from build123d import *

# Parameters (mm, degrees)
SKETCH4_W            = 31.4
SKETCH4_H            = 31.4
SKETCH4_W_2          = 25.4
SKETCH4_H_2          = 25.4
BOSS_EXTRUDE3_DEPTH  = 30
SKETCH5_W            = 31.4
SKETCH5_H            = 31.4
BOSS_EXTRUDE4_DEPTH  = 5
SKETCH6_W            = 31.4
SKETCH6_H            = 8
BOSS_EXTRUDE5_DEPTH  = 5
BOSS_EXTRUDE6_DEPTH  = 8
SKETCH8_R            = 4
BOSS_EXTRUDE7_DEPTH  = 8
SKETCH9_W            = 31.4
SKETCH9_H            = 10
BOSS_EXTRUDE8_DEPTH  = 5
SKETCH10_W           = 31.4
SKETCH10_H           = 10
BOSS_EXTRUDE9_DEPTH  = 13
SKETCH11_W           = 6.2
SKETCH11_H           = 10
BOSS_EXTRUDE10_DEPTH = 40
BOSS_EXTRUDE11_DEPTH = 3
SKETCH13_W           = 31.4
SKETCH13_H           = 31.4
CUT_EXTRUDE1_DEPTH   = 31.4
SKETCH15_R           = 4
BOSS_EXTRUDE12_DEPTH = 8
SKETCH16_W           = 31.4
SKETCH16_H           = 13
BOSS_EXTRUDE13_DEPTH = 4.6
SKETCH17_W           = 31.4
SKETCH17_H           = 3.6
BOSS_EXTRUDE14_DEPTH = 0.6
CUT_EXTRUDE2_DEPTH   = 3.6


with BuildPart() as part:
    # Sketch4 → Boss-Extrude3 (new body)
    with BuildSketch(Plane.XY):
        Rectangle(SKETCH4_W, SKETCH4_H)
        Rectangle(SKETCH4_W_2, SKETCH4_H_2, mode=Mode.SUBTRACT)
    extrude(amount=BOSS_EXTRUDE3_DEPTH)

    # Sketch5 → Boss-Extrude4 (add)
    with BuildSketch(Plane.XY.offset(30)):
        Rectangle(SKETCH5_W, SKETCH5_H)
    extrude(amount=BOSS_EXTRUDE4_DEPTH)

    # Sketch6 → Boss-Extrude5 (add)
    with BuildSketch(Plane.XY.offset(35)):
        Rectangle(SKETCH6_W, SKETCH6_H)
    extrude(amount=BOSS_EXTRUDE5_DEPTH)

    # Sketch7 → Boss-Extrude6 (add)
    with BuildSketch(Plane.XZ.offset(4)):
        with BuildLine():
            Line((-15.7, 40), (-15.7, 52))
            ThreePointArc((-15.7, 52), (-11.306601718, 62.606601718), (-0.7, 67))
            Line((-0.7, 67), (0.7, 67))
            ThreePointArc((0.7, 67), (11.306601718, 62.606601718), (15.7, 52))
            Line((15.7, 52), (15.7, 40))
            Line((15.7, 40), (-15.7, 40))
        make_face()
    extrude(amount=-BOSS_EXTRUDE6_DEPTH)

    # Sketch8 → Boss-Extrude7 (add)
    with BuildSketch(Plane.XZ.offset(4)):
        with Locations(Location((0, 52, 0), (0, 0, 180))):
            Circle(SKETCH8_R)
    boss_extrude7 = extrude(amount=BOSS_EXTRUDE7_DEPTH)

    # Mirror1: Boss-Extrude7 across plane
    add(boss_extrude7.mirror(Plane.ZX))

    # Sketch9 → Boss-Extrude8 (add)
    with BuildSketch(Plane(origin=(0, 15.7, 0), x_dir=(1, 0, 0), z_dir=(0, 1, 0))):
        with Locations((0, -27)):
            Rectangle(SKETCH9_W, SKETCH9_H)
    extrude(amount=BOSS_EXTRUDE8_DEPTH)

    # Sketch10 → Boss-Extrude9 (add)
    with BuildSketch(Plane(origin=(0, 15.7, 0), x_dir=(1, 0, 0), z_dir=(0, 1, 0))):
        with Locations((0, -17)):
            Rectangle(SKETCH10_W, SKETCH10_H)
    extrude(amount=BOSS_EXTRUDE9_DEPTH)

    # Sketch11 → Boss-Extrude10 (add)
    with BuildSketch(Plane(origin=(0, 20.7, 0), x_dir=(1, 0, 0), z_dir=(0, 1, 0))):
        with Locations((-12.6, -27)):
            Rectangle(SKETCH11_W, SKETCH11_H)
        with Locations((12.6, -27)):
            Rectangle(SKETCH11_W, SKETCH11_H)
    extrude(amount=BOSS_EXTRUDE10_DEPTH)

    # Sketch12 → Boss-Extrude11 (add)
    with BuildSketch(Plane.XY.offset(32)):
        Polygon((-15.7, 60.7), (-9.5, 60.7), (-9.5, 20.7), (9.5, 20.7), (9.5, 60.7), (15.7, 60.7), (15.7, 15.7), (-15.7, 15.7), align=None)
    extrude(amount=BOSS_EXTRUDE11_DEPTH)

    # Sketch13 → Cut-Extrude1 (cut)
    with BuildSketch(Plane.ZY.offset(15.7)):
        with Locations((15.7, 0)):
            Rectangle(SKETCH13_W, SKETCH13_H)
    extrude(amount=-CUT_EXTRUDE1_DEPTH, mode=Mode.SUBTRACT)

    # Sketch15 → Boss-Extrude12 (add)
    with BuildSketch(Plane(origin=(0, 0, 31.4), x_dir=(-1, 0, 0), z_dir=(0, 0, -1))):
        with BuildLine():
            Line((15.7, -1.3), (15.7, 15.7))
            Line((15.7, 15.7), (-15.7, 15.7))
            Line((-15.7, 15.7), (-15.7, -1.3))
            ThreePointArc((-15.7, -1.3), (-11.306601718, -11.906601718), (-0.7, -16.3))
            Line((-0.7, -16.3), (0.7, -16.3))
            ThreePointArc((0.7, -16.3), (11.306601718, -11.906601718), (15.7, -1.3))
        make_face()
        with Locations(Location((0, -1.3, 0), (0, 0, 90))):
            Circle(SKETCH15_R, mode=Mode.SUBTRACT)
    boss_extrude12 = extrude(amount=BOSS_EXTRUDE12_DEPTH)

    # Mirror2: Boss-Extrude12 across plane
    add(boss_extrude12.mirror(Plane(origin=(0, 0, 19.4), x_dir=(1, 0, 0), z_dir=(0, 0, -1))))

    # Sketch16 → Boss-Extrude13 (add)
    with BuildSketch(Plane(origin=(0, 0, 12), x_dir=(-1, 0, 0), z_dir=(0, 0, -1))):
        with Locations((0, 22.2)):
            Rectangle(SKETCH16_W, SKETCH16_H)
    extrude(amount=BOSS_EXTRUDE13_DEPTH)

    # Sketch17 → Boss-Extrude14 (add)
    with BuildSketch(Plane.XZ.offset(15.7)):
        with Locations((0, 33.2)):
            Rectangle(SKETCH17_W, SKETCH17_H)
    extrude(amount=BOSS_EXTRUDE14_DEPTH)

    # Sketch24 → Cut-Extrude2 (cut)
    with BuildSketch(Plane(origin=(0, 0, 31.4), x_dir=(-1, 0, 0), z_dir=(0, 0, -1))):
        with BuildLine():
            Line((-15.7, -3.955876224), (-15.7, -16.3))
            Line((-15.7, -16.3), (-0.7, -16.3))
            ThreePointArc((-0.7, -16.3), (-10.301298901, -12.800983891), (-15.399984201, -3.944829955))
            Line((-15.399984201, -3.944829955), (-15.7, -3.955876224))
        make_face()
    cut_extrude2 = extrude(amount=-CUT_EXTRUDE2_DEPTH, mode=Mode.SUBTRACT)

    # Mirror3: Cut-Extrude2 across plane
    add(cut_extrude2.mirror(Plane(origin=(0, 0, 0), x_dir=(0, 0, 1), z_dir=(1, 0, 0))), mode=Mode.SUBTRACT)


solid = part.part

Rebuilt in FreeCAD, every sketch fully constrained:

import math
import FreeCAD as App
import Part
import Sketcher
from FreeCAD import Vector
Q = App.Units.Quantity


def add_polygon(sketch, points):
    """Adds a closed chain of lines whose ends are joined by coincident constraints."""
    first, n = sketch.GeometryCount, len(points)
    for a, b in zip(points, points[1:] + points[:1]):
        sketch.addGeometry(Part.LineSegment(App.Vector(*a, 0), App.Vector(*b, 0)), False)
    for i in range(n):
        sketch.addConstraint(Sketcher.Constraint("Coincident", first + i, 2, first + (i + 1) % n, 1))

doc = App.newDocument("Part")
body = doc.addObject("PartDesign::Body", "Body")

# Sketch on XY plane
sketch1 = body.newObject("Sketcher::SketchObject", "Sketch")
sketch1.AttachmentSupport = (doc.getObject("XY_Plane"), [""])
sketch1.MapMode = "FlatFace"
add_polygon(sketch1, [(-15.7, 15.7), (-15.7, -15.7), (15.7, -15.7), (15.7, 15.7)])  # lines 0-3
add_polygon(sketch1, [(12.7, -12.7), (-12.7, -12.7), (-12.7, 12.7), (12.7, 12.7)])  # lines 4-7
sketch1.addConstraint(Sketcher.Constraint("Vertical", 0))
sketch1.addConstraint(Sketcher.Constraint("Horizontal", 1))
sketch1.addConstraint(Sketcher.Constraint("Vertical", 2))
sketch1.addConstraint(Sketcher.Constraint("Horizontal", 3))
sketch1.addConstraint(Sketcher.Constraint("Horizontal", 4))
sketch1.addConstraint(Sketcher.Constraint("Vertical", 5))
sketch1.addConstraint(Sketcher.Constraint("Horizontal", 6))
sketch1.addConstraint(Sketcher.Constraint("Vertical", 7))
sketch1.addConstraint(Sketcher.Constraint("Symmetric", 0, 2, 2, 2, -1, 1))
sketch1.addConstraint(Sketcher.Constraint("Symmetric", 4, 2, 6, 2, -1, 1))
sketch1.addConstraint(Sketcher.Constraint("Equal", 3, 0))
sketch1.addConstraint(Sketcher.Constraint("Equal", 6, 5))
sketch1.addConstraint(Sketcher.Constraint("DistanceX", 1, 1, 1, 2, Q("31.4 mm")))
sketch1.addConstraint(Sketcher.Constraint("DistanceX", 4, 2, 4, 1, Q("25.4 mm")))
pad1 = body.newObject("PartDesign::Pad", "Pad")
pad1.Profile = sketch1
pad1.Length = 30

# Sketch on XY plane
sketch2 = body.newObject("Sketcher::SketchObject", "Sketch001")
sketch2.AttachmentSupport = (doc.getObject("XY_Plane"), [""])
sketch2.MapMode = "FlatFace"
sketch2.AttachmentOffset = App.Placement(Vector(0, 0, 30), App.Rotation())
add_polygon(sketch2, [(-15.7, 15.7), (-15.7, -15.7), (15.7, -15.7), (15.7, 15.7)])  # lines 0-3
sketch2.addConstraint(Sketcher.Constraint("Vertical", 0))
sketch2.addConstraint(Sketcher.Constraint("Horizontal", 1))
sketch2.addConstraint(Sketcher.Constraint("Vertical", 2))
sketch2.addConstraint(Sketcher.Constraint("Horizontal", 3))
sketch2.addConstraint(Sketcher.Constraint("Symmetric", 0, 2, 2, 2, -1, 1))
sketch2.addConstraint(Sketcher.Constraint("Equal", 3, 0))
sketch2.addConstraint(Sketcher.Constraint("DistanceX", 1, 1, 1, 2, Q("31.4 mm")))
pad2 = body.newObject("PartDesign::Pad", "Pad001")
pad2.Profile = sketch2
pad2.Length = 5

# Sketch on XY plane
sketch3 = body.newObject("Sketcher::SketchObject", "Sketch002")
sketch3.AttachmentSupport = (doc.getObject("XY_Plane"), [""])
sketch3.MapMode = "FlatFace"
sketch3.AttachmentOffset = App.Placement(Vector(0, 0, 35), App.Rotation())
add_polygon(sketch3, [(-15.7, 4), (-15.7, -4), (15.7, -4), (15.7, 4)])  # lines 0-3
sketch3.addConstraint(Sketcher.Constraint("Vertical", 0))
sketch3.addConstraint(Sketcher.Constraint("Horizontal", 1))
sketch3.addConstraint(Sketcher.Constraint("Vertical", 2))
sketch3.addConstraint(Sketcher.Constraint("Horizontal", 3))
sketch3.addConstraint(Sketcher.Constraint("Symmetric", 0, 2, 2, 2, -1, 1))
sketch3.addConstraint(Sketcher.Constraint("DistanceY", 0, 2, 0, 1, Q("8 mm")))
sketch3.addConstraint(Sketcher.Constraint("DistanceX", 1, 1, 1, 2, Q("31.4 mm")))
pad3 = body.newObject("PartDesign::Pad", "Pad002")
pad3.Profile = sketch3
pad3.Length = 5

# Sketch on XZ plane
sketch4 = body.newObject("Sketcher::SketchObject", "Sketch003")
sketch4.AttachmentSupport = (doc.getObject("XZ_Plane"), [""])
sketch4.MapMode = "FlatFace"
sketch4.AttachmentOffset = App.Placement(Vector(0, 0, 4), App.Rotation())
sketch4.addGeometry(Part.LineSegment(Vector(-15.7, 52, 0), Vector(-15.7, 40, 0)), False)
sketch4.addGeometry(Part.LineSegment(Vector(-15.7, 40, 0), Vector(15.7, 40, 0)), False)
sketch4.addGeometry(Part.LineSegment(Vector(15.7, 40, 0), Vector(15.7, 52, 0)), False)
sketch4.addGeometry(Part.ArcOfCircle(Part.Circle(Vector(0.7, 52, 0), Vector(0, 0, 1), 15), math.radians(0), math.radians(90)), False)
sketch4.addGeometry(Part.LineSegment(Vector(0.7, 67, 0), Vector(-0.7, 67, 0)), False)
sketch4.addGeometry(Part.ArcOfCircle(Part.Circle(Vector(-0.7, 52, 0), Vector(0, 0, 1), 15), math.radians(90), math.radians(180)), False)
sketch4.addConstraint(Sketcher.Constraint("Coincident", 0, 2, 1, 1))
sketch4.addConstraint(Sketcher.Constraint("Coincident", 1, 2, 2, 1))
sketch4.addConstraint(Sketcher.Constraint("Tangent", 2, 2, 3, 1))
sketch4.addConstraint(Sketcher.Constraint("Tangent", 3, 2, 4, 1))
sketch4.addConstraint(Sketcher.Constraint("Tangent", 4, 2, 5, 1))
sketch4.addConstraint(Sketcher.Constraint("Tangent", 5, 2, 0, 1))
sketch4.addConstraint(Sketcher.Constraint("Vertical", 0))
sketch4.addConstraint(Sketcher.Constraint("Horizontal", 1))
sketch4.addConstraint(Sketcher.Constraint("Vertical", 2))
sketch4.addConstraint(Sketcher.Constraint("Horizontal", 4))
sketch4.addConstraint(Sketcher.Constraint("Equal", 3, 5))
sketch4.addConstraint(Sketcher.Constraint("Radius", 3, Q("15 mm")))
sketch4.addConstraint(Sketcher.Constraint("DistanceY", 0, 2, 0, 1, Q("12 mm")))
sketch4.addConstraint(Sketcher.Constraint("DistanceX", 1, 1, 1, 2, Q("31.4 mm")))
sketch4.addConstraint(Sketcher.Constraint("DistanceY", -1, 1, 3, 3, Q("52 mm")))
sketch4.addConstraint(Sketcher.Constraint("DistanceX", -1, 1, 3, 3, Q("0.7 mm")))
pad4 = body.newObject("PartDesign::Pad", "Pad003")
pad4.Profile = sketch4
pad4.Length = 8
pad4.Reversed = True

# Sketch on XZ plane
sketch5 = body.newObject("Sketcher::SketchObject", "Sketch004")
sketch5.AttachmentSupport = (doc.getObject("XZ_Plane"), [""])
sketch5.MapMode = "FlatFace"
sketch5.AttachmentOffset = App.Placement(Vector(0, 0, 4), App.Rotation())
sketch5.addGeometry(Part.Circle(Vector(0, 52, 0), Vector(0, 0, 1), 4), False)
sketch5.addConstraint(Sketcher.Constraint("PointOnObject", 0, 3, -2))
sketch5.addConstraint(Sketcher.Constraint("Diameter", 0, Q("8 mm")))
sketch5.addConstraint(Sketcher.Constraint("DistanceY", -1, 1, 0, 3, Q("52 mm")))
pad5 = body.newObject("PartDesign::Pad", "Pad004")
pad5.Profile = sketch5
pad5.Length = 8
doc.recompute()

mirrored = body.newObject("PartDesign::Mirrored", "Mirrored")
mirrored.Originals = [pad5]
mirrored.MirrorPlane = (doc.getObject("XZ_Plane"), [""])
body.Tip = mirrored

# Sketch on XZ plane
sketch6 = body.newObject("Sketcher::SketchObject", "Sketch005")
sketch6.AttachmentSupport = (doc.getObject("XZ_Plane"), [""])
sketch6.MapMode = "FlatFace"
sketch6.AttachmentOffset = App.Placement(Vector(0, 0, -15.7), App.Rotation())
add_polygon(sketch6, [(-15.7, 22), (-15.7, 32), (15.7, 32), (15.7, 22)])  # lines 0-3
sketch6.addConstraint(Sketcher.Constraint("Vertical", 0))
sketch6.addConstraint(Sketcher.Constraint("Horizontal", 1))
sketch6.addConstraint(Sketcher.Constraint("Vertical", 2))
sketch6.addConstraint(Sketcher.Constraint("Horizontal", 3))
sketch6.addConstraint(Sketcher.Constraint("DistanceY", 0, 1, 0, 2, Q("10 mm")))
sketch6.addConstraint(Sketcher.Constraint("DistanceX", 1, 1, 1, 2, Q("31.4 mm")))
sketch6.addConstraint(Sketcher.Constraint("DistanceY", -1, 1, 0, 2, Q("32 mm")))
sketch6.addConstraint(Sketcher.Constraint("DistanceX", 0, 2, -1, 1, Q("15.7 mm")))
pad6 = body.newObject("PartDesign::Pad", "Pad005")
pad6.Profile = sketch6
pad6.Length = 5
pad6.Reversed = True

# Sketch on XZ plane
sketch7 = body.newObject("Sketcher::SketchObject", "Sketch006")
sketch7.AttachmentSupport = (doc.getObject("XZ_Plane"), [""])
sketch7.MapMode = "FlatFace"
sketch7.AttachmentOffset = App.Placement(Vector(0, 0, -15.7), App.Rotation())
add_polygon(sketch7, [(-15.7, 12), (-15.7, 22), (15.7, 22), (15.7, 12)])  # lines 0-3
sketch7.addConstraint(Sketcher.Constraint("Vertical", 0))
sketch7.addConstraint(Sketcher.Constraint("Horizontal", 1))
sketch7.addConstraint(Sketcher.Constraint("Vertical", 2))
sketch7.addConstraint(Sketcher.Constraint("Horizontal", 3))
sketch7.addConstraint(Sketcher.Constraint("DistanceY", 0, 1, 0, 2, Q("10 mm")))
sketch7.addConstraint(Sketcher.Constraint("DistanceX", 1, 1, 1, 2, Q("31.4 mm")))
sketch7.addConstraint(Sketcher.Constraint("DistanceY", -1, 1, 0, 2, Q("22 mm")))
sketch7.addConstraint(Sketcher.Constraint("DistanceX", 0, 2, -1, 1, Q("15.7 mm")))
pad7 = body.newObject("PartDesign::Pad", "Pad006")
pad7.Profile = sketch7
pad7.Length = 13
pad7.Reversed = True

# Sketch on XZ plane
sketch8 = body.newObject("Sketcher::SketchObject", "Sketch007")
sketch8.AttachmentSupport = (doc.getObject("XZ_Plane"), [""])
sketch8.MapMode = "FlatFace"
sketch8.AttachmentOffset = App.Placement(Vector(0, 0, -20.7), App.Rotation())
add_polygon(sketch8, [(-15.7, 22), (-15.7, 32), (-9.5, 32), (-9.5, 22)])  # lines 0-3
add_polygon(sketch8, [(9.5, 22), (9.5, 32), (15.7, 32), (15.7, 22)])  # lines 4-7
sketch8.addConstraint(Sketcher.Constraint("Vertical", 0))
sketch8.addConstraint(Sketcher.Constraint("Horizontal", 1))
sketch8.addConstraint(Sketcher.Constraint("Vertical", 2))
sketch8.addConstraint(Sketcher.Constraint("Horizontal", 3))
sketch8.addConstraint(Sketcher.Constraint("Vertical", 4))
sketch8.addConstraint(Sketcher.Constraint("Horizontal", 5))
sketch8.addConstraint(Sketcher.Constraint("Vertical", 6))
sketch8.addConstraint(Sketcher.Constraint("Horizontal", 7))
sketch8.addConstraint(Sketcher.Constraint("Symmetric", 1, 2, 4, 2, -2))
sketch8.addConstraint(Sketcher.Constraint("Symmetric", 3, 2, 6, 2, -2))
sketch8.addConstraint(Sketcher.Constraint("DistanceY", 0, 1, 0, 2, Q("10 mm")))
sketch8.addConstraint(Sketcher.Constraint("DistanceX", 1, 1, 1, 2, Q("6.2 mm")))
sketch8.addConstraint(Sketcher.Constraint("DistanceY", -1, 1, 0, 2, Q("32 mm")))
sketch8.addConstraint(Sketcher.Constraint("DistanceX", 1, 2, 4, 2, Q("19 mm")))
pad8 = body.newObject("PartDesign::Pad", "Pad007")
pad8.Profile = sketch8
pad8.Length = 40
pad8.Reversed = True

# Sketch on XY plane
sketch9 = body.newObject("Sketcher::SketchObject", "Sketch008")
sketch9.AttachmentSupport = (doc.getObject("XY_Plane"), [""])
sketch9.MapMode = "FlatFace"
sketch9.AttachmentOffset = App.Placement(Vector(0, 0, 32), App.Rotation())
add_polygon(sketch9, [(-9.5, 60.7), (-15.7, 60.7), (-15.7, 15.7), (15.7, 15.7), (15.7, 60.7), (9.5, 60.7), (9.5, 20.7), (-9.5, 20.7)])  # lines 0-7
sketch9.addConstraint(Sketcher.Constraint("Horizontal", 0))
sketch9.addConstraint(Sketcher.Constraint("Vertical", 1))
sketch9.addConstraint(Sketcher.Constraint("Horizontal", 2))
sketch9.addConstraint(Sketcher.Constraint("Vertical", 3))
sketch9.addConstraint(Sketcher.Constraint("Horizontal", 4))
sketch9.addConstraint(Sketcher.Constraint("Vertical", 5))
sketch9.addConstraint(Sketcher.Constraint("Horizontal", 6))
sketch9.addConstraint(Sketcher.Constraint("Vertical", 7))
sketch9.addConstraint(Sketcher.Constraint("Symmetric", 0, 2, 3, 2, -2))
sketch9.addConstraint(Sketcher.Constraint("Equal", 0, 4))
sketch9.addConstraint(Sketcher.Constraint("DistanceX", 6, 2, 6, 1, Q("19 mm")))
sketch9.addConstraint(Sketcher.Constraint("DistanceY", 1, 2, 1, 1, Q("45 mm")))
sketch9.addConstraint(Sketcher.Constraint("DistanceY", 5, 2, 5, 1, Q("40 mm")))
sketch9.addConstraint(Sketcher.Constraint("DistanceX", 0, 2, 0, 1, Q("6.2 mm")))
sketch9.addConstraint(Sketcher.Constraint("DistanceY", -1, 1, 0, 2, Q("60.7 mm")))
pad9 = body.newObject("PartDesign::Pad", "Pad008")
pad9.Profile = sketch9
pad9.Length = 3

# Sketch on YZ plane
sketch10 = body.newObject("Sketcher::SketchObject", "Sketch009")
sketch10.AttachmentSupport = (doc.getObject("YZ_Plane"), [""])
sketch10.MapMode = "FlatFace"
sketch10.AttachmentOffset = App.Placement(Vector(0, 0, -15.7), App.Rotation())
add_polygon(sketch10, [(15.7, 0), (-15.7, 0), (-15.7, 31.4), (15.7, 31.4)])  # lines 0-3
sketch10.addConstraint(Sketcher.Constraint("Horizontal", 0))
sketch10.addConstraint(Sketcher.Constraint("Vertical", 1))
sketch10.addConstraint(Sketcher.Constraint("Horizontal", 2))
sketch10.addConstraint(Sketcher.Constraint("Vertical", 3))
sketch10.addConstraint(Sketcher.Constraint("Symmetric", 0, 2, 3, 2, -1, 1))
sketch10.addConstraint(Sketcher.Constraint("Equal", 2, 1))
sketch10.addConstraint(Sketcher.Constraint("DistanceX", 0, 2, 0, 1, Q("31.4 mm")))
pocket1 = body.newObject("PartDesign::Pocket", "Pocket")
pocket1.Profile = sketch10
pocket1.Length = 31.4
pocket1.Reversed = True

# Sketch on XY plane
sketch11 = body.newObject("Sketcher::SketchObject", "Sketch010")
sketch11.AttachmentSupport = (doc.getObject("XY_Plane"), [""])
sketch11.MapMode = "FlatFace"
sketch11.AttachmentOffset = App.Placement(Vector(0, 0, 31.4), App.Rotation())
sketch11.addGeometry(Part.LineSegment(Vector(-15.7, -1.3, 0), Vector(-15.7, 15.7, 0)), False)
sketch11.addGeometry(Part.LineSegment(Vector(-15.7, 15.7, 0), Vector(15.7, 15.7, 0)), False)
sketch11.addGeometry(Part.LineSegment(Vector(15.7, 15.7, 0), Vector(15.7, -1.3, 0)), False)
sketch11.addGeometry(Part.ArcOfCircle(Part.Circle(Vector(0.7, -1.3, 0), Vector(0, 0, 1), 15), math.radians(-90), math.radians(0)), False)
sketch11.addGeometry(Part.LineSegment(Vector(0.7, -16.3, 0), Vector(-0.7, -16.3, 0)), False)
sketch11.addGeometry(Part.ArcOfCircle(Part.Circle(Vector(-0.7, -1.3, 0), Vector(0, 0, 1), 15), math.radians(180), math.radians(270)), False)
sketch11.addGeometry(Part.Circle(Vector(0, -1.3, 0), Vector(0, 0, 1), 4), False)
sketch11.addConstraint(Sketcher.Constraint("Coincident", 0, 2, 1, 1))
sketch11.addConstraint(Sketcher.Constraint("Coincident", 1, 2, 2, 1))
sketch11.addConstraint(Sketcher.Constraint("Tangent", 2, 2, 3, 2))
sketch11.addConstraint(Sketcher.Constraint("Tangent", 3, 1, 4, 1))
sketch11.addConstraint(Sketcher.Constraint("Tangent", 4, 2, 5, 2))
sketch11.addConstraint(Sketcher.Constraint("Tangent", 5, 1, 0, 1))
sketch11.addConstraint(Sketcher.Constraint("Vertical", 0))
sketch11.addConstraint(Sketcher.Constraint("Horizontal", 1))
sketch11.addConstraint(Sketcher.Constraint("Vertical", 2))
sketch11.addConstraint(Sketcher.Constraint("Horizontal", 4))
sketch11.addConstraint(Sketcher.Constraint("Equal", 3, 5))
sketch11.addConstraint(Sketcher.Constraint("PointOnObject", 6, 3, -2))
sketch11.addConstraint(Sketcher.Constraint("Horizontal", 5, 3, 6, 3))
sketch11.addConstraint(Sketcher.Constraint("Diameter", 6, Q("8 mm")))
sketch11.addConstraint(Sketcher.Constraint("Radius", 3, Q("15 mm")))
sketch11.addConstraint(Sketcher.Constraint("DistanceY", 0, 1, 0, 2, Q("17 mm")))
sketch11.addConstraint(Sketcher.Constraint("DistanceX", 1, 1, 1, 2, Q("31.4 mm")))
sketch11.addConstraint(Sketcher.Constraint("DistanceX", -1, 1, 3, 3, Q("0.7 mm")))
sketch11.addConstraint(Sketcher.Constraint("DistanceY", 3, 3, -1, 1, Q("1.3 mm")))
pad10 = body.newObject("PartDesign::Pad", "Pad009")
pad10.Profile = sketch11
pad10.Length = 8
pad10.Reversed = True
doc.recompute()

datumplane = body.newObject("PartDesign::Plane", "DatumPlane")
datumplane.AttachmentSupport = (doc.getObject("XY_Plane"), [""])
datumplane.MapMode = "FlatFace"
datumplane.AttachmentOffset = App.Placement(Vector(0, 0, 19.4), App.Rotation())
mirrored2 = body.newObject("PartDesign::Mirrored", "Mirrored001")
mirrored2.Originals = [pad10]
mirrored2.MirrorPlane = (datumplane, [""])
body.Tip = mirrored2

# Sketch on XY plane
sketch12 = body.newObject("Sketcher::SketchObject", "Sketch011")
sketch12.AttachmentSupport = (doc.getObject("XY_Plane"), [""])
sketch12.MapMode = "FlatFace"
sketch12.AttachmentOffset = App.Placement(Vector(0, 0, 12), App.Rotation())
add_polygon(sketch12, [(15.7, 28.7), (15.7, 15.7), (-15.7, 15.7), (-15.7, 28.7)])  # lines 0-3
sketch12.addConstraint(Sketcher.Constraint("Vertical", 0))
sketch12.addConstraint(Sketcher.Constraint("Horizontal", 1))
sketch12.addConstraint(Sketcher.Constraint("Vertical", 2))
sketch12.addConstraint(Sketcher.Constraint("Horizontal", 3))
sketch12.addConstraint(Sketcher.Constraint("DistanceY", 0, 2, 0, 1, Q("13 mm")))
sketch12.addConstraint(Sketcher.Constraint("DistanceX", 1, 2, 1, 1, Q("31.4 mm")))
sketch12.addConstraint(Sketcher.Constraint("DistanceX", -1, 1, 0, 2, Q("15.7 mm")))
sketch12.addConstraint(Sketcher.Constraint("DistanceY", -1, 1, 0, 2, Q("15.7 mm")))
pad11 = body.newObject("PartDesign::Pad", "Pad010")
pad11.Profile = sketch12
pad11.Length = 4.6
pad11.Reversed = True

# Sketch on XZ plane
sketch13 = body.newObject("Sketcher::SketchObject", "Sketch012")
sketch13.AttachmentSupport = (doc.getObject("XZ_Plane"), [""])
sketch13.MapMode = "FlatFace"
sketch13.AttachmentOffset = App.Placement(Vector(0, 0, 15.7), App.Rotation())
add_polygon(sketch13, [(-15.7, 35), (-15.7, 31.4), (15.7, 31.4), (15.7, 35)])  # lines 0-3
sketch13.addConstraint(Sketcher.Constraint("Vertical", 0))
sketch13.addConstraint(Sketcher.Constraint("Horizontal", 1))
sketch13.addConstraint(Sketcher.Constraint("Vertical", 2))
sketch13.addConstraint(Sketcher.Constraint("Horizontal", 3))
sketch13.addConstraint(Sketcher.Constraint("DistanceX", 1, 1, 1, 2, Q("31.4 mm")))
sketch13.addConstraint(Sketcher.Constraint("DistanceY", 0, 2, 0, 1, Q("3.6 mm")))
sketch13.addConstraint(Sketcher.Constraint("DistanceY", -1, 1, 2, 2, Q("35 mm")))
sketch13.addConstraint(Sketcher.Constraint("DistanceX", 0, 2, -1, 1, Q("15.7 mm")))
pad12 = body.newObject("PartDesign::Pad", "Pad011")
pad12.Profile = sketch13
pad12.Length = 0.6

# Sketch on XY plane
sketch14 = body.newObject("Sketcher::SketchObject", "Sketch013")
sketch14.AttachmentSupport = (doc.getObject("XY_Plane"), [""])
sketch14.MapMode = "FlatFace"
sketch14.AttachmentOffset = App.Placement(Vector(0, 0, 31.4), App.Rotation())
sketch14.addGeometry(Part.LineSegment(Vector(15.7, -3.955876, 0), Vector(15.7, -16.3, 0)), False)
sketch14.addGeometry(Part.LineSegment(Vector(15.7, -16.3, 0), Vector(0.7, -16.3, 0)), False)
sketch14.addGeometry(Part.ArcOfCircle(Part.Circle(Vector(0.7, -1.377512, 0), Vector(0, 0, 1), 14.922488), math.radians(-90), math.radians(-9.906658)), False)
sketch14.addGeometry(Part.LineSegment(Vector(15.399984, -3.94483, 0), Vector(15.7, -3.955876, 0)), False)
sketch14.addConstraint(Sketcher.Constraint("Coincident", 0, 2, 1, 1))
sketch14.addConstraint(Sketcher.Constraint("Tangent", 1, 2, 2, 1))
sketch14.addConstraint(Sketcher.Constraint("Coincident", 2, 2, 3, 1))
sketch14.addConstraint(Sketcher.Constraint("Coincident", 3, 2, 0, 1))
sketch14.addConstraint(Sketcher.Constraint("Vertical", 0))
sketch14.addConstraint(Sketcher.Constraint("Horizontal", 1))
sketch14.addConstraint(Sketcher.Constraint("DistanceX", 1, 2, 1, 1, Q("15 mm")))
sketch14.addConstraint(Sketcher.Constraint("DistanceX", -1, 1, 2, 3, Q("0.7 mm")))
sketch14.addConstraint(Sketcher.Constraint("DistanceY", 0, 2, -1, 1, Q("16.3 mm")))
sketch14.addConstraint(Sketcher.Constraint("Radius", 2, Q("14.922488 mm")))
sketch14.addConstraint(Sketcher.Constraint("Distance", 3, Q("0.300219 mm")))
sketch14.addConstraint(Sketcher.Constraint("DistanceY", 0, 2, 0, 1, Q("12.344124 mm")))
pocket2 = body.newObject("PartDesign::Pocket", "Pocket001")
pocket2.Profile = sketch14
pocket2.Length = 3.6
pocket2.Reversed = True
doc.recompute()

mirrored3 = body.newObject("PartDesign::Mirrored", "Mirrored002")
mirrored3.Originals = [pocket2]
mirrored3.MirrorPlane = (doc.getObject("YZ_Plane"), [""])
body.Tip = mirrored3

doc.recompute()
